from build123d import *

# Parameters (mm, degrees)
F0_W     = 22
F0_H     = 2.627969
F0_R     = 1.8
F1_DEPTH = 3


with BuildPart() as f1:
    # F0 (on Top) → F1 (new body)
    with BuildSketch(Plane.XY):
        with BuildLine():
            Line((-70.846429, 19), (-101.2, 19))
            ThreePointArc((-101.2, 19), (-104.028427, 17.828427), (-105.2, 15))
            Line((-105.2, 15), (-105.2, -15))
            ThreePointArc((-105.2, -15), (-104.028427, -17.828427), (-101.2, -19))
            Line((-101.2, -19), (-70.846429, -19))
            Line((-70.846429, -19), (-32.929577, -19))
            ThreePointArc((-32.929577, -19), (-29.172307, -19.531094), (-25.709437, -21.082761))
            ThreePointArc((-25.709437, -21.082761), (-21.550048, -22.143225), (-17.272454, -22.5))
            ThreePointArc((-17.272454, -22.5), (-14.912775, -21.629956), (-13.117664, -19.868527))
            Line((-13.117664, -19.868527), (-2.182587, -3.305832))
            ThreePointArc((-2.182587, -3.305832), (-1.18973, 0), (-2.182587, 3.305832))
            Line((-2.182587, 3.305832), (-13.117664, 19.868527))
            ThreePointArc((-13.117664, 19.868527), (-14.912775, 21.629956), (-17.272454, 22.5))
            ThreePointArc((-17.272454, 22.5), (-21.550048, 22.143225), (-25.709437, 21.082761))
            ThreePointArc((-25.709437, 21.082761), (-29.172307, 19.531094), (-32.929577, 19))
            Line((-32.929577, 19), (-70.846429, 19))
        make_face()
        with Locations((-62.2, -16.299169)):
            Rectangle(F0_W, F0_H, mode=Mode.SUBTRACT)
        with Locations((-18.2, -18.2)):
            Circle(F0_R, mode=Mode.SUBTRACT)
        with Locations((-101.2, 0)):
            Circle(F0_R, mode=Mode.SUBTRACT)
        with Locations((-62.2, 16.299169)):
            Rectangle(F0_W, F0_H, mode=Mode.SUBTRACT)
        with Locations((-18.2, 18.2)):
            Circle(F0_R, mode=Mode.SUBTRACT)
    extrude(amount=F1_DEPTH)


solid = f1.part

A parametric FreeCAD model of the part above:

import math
import FreeCAD as App
import Part
import Sketcher
Q = App.Units.Quantity


def add_polygon(sketch, points):
    """Adds a closed chain of lines whose ends are joined by coincident constraints."""
    first, n = sketch.GeometryCount, len(points)
    for a, b in zip(points, points[1:] + points[:1]):
        sketch.addGeometry(Part.LineSegment(App.Vector(*a, 0), App.Vector(*b, 0)), False)
    for i in range(n):
        sketch.addConstraint(Sketcher.Constraint("Coincident", first + i, 2, first + (i + 1) % n, 1))

doc = App.newDocument("Part")
params = doc.addObject("Spreadsheet::Sheet", "Params")
for row, (alias, value) in enumerate([
    ("sketch1_radius", "4 mm"),
    ("sketch1_diameter", "3.6 mm"),
    ("sketch1_width", "22 mm"),
    ("sketch1_height", "30 mm"),
    ("pad1_length", "3 mm"),
], start=1):
    params.set(f"A{row}", alias)
    params.set(f"B{row}", "=" + value)
    params.setAlias(f"B{row}", alias)

body = doc.addObject("PartDesign::Body", "Body")

# Sketch on XY plane
sketch1 = body.newObject("Sketcher::SketchObject", "Sketch")
sketch1.AttachmentSupport = (doc.getObject("XY_Plane"), [""])
sketch1.MapMode = "FlatFace"
sketch1.addGeometry(Part.ArcOfCircle(Part.Circle(App.Vector(-101.2, 15, 0), App.Vector(0, 0, 1), 4), math.radians(90), math.radians(180)), False)  # 0
sketch1.addGeometry(Part.LineSegment(App.Vector(-105.2, 15, 0), App.Vector(-105.2, -15, 0)), False)  # 1
sketch1.addGeometry(Part.ArcOfCircle(Part.Circle(App.Vector(-101.2, -15, 0), App.Vector(0, 0, 1), 4), math.radians(-180), math.radians(-90)), False)  # 2
sketch1.addGeometry(Part.LineSegment(App.Vector(-101.2, -19, 0), App.Vector(-32.9, -19, 0)), False)  # 3
sketch1.addGeometry(Part.ArcOfCircle(Part.Circle(App.Vector(-32.9, -32.6, 0), App.Vector(0, 0, 1), 13.6), math.radians(58), math.radians(90)), False)  # 4
sketch1.addGeometry(Part.ArcOfCircle(Part.Circle(App.Vector(-17.3, 3.3, 0), App.Vector(0, 0, 1), 25.8), math.radians(-109.07), math.radians(-90)), False)  # 5
sketch1.addGeometry(Part.ArcOfCircle(Part.Circle(App.Vector(-18.1, -16.6, 0), App.Vector(0, 0, 1), 6), math.radians(-82), math.radians(-33)), False)  # 6
sketch1.addGeometry(Part.LineSegment(App.Vector(-13.1, -19.9, 0), App.Vector(-2.2, -3.3, 0)), False)  # 7
sketch1.addGeometry(Part.ArcOfCircle(Part.Circle(App.Vector(-7.2, 0, 0), App.Vector(0, 0, 1), 6), math.radians(-33), math.radians(33)), False)  # 8
sketch1.addGeometry(Part.LineSegment(App.Vector(-2.2, 3.3, 0), App.Vector(-13.1, 19.9, 0)), False)  # 9
sketch1.addGeometry(Part.ArcOfCircle(Part.Circle(App.Vector(-18.1, 16.6, 0), App.Vector(0, 0, 1), 6), math.radians(33), math.radians(82)), False)  # 10
sketch1.addGeometry(Part.ArcOfCircle(Part.Circle(App.Vector(-17.3, -3.3, 0), App.Vector(0, 0, 1), 25.8), math.radians(90), math.radians(109.07)), False)  # 11
sketch1.addGeometry(Part.ArcOfCircle(Part.Circle(App.Vector(-32.9, 32.6, 0), App.Vector(0, 0, 1), 13.6), math.radians(-90), math.radians(-58)), False)  # 12
sketch1.addGeometry(Part.LineSegment(App.Vector(-32.9, 19, 0), App.Vector(-101.2, 19, 0)), False)  # 13
add_polygon(sketch1, [(-51.2, -17.6), (-73.2, -17.6), (-73.2, -15), (-51.2, -15)])  # lines 14-17
sketch1.addGeometry(Part.Circle(App.Vector(-18.2, -18.2, 0), App.Vector(0, 0, 1), 1.8), False)  # 18
sketch1.addGeometry(Part.Circle(App.Vector(-101.2, 0, 0), App.Vector(0, 0, 1), 1.8), False)  # 19
add_polygon(sketch1, [(-51.2, 15), (-73.2, 15), (-73.2, 17.6), (-51.2, 17.6)])  # lines 20-23
sketch1.addGeometry(Part.Circle(App.Vector(-18.2, 18.2, 0), App.Vector(0, 0, 1), 1.8), False)  # 24
sketch1.addConstraint([
    Sketcher.Constraint("Tangent", 0, 2, 1, 1),
    Sketcher.Constraint("Tangent", 1, 2, 2, 1),
    Sketcher.Constraint("Tangent", 2, 2, 3, 1),
    Sketcher.Constraint("Tangent", 3, 2, 4, 2),
    Sketcher.Constraint("Coincident", 4, 1, 5, 1),
    Sketcher.Constraint("Coincident", 5, 2, 6, 1),
    Sketcher.Constraint("Tangent", 6, 2, 7, 1),
    Sketcher.Constraint("Tangent", 7, 2, 8, 1),
    Sketcher.Constraint("Tangent", 8, 2, 9, 1),
    Sketcher.Constraint("Tangent", 9, 2, 10, 1),
    Sketcher.Constraint("Coincident", 10, 2, 11, 1),
    Sketcher.Constraint("Coincident", 11, 2, 12, 2),
    Sketcher.Constraint("Tangent", 12, 1, 13, 1),
    Sketcher.Constraint("Tangent", 13, 2, 0, 1),
    Sketcher.Constraint("Vertical", 1),
    Sketcher.Constraint("Horizontal", 3),
    Sketcher.Constraint("Horizontal", 13),
    Sketcher.Constraint("Horizontal", 14),
    Sketcher.Constraint("Vertical", 15),
    Sketcher.Constraint("Horizontal", 16),
    Sketcher.Constraint("Vertical", 17),
    Sketcher.Constraint("Horizontal", 20),
    Sketcher.Constraint("Vertical", 21),
    Sketcher.Constraint("Horizontal", 22),
    Sketcher.Constraint("Vertical", 23),
    Sketcher.Constraint("Equal", 0, 2),
    Sketcher.Constraint("Equal", 6, 10),
    Sketcher.Constraint("Equal", 5, 11),
    Sketcher.Constraint("Equal", 4, 12),
    Sketcher.Constraint("Equal", 18, 19),
    Sketcher.Constraint("Equal", 19, 24),
    Sketcher.Constraint("Symmetric", 6, 3, 10, 3, -1),
    Sketcher.Constraint("Symmetric", 5, 3, 11, 3, -1),
    Sketcher.Constraint("Symmetric", 4, 3, 12, 3, -1),
    Sketcher.Constraint("Symmetric", 18, 3, 24, 3, -1),
    Sketcher.Constraint("Symmetric", 15, 2, 20, 2, -1),
    Sketcher.Constraint("Symmetric", 17, 2, 22, 2, -1),
    Sketcher.Constraint("PointOnObject", 8, 3, -1),
    Sketcher.Constraint("PointOnObject", 19, 3, -1),
    Sketcher.Constraint("Vertical", 2, 3, 19, 3),
    Sketcher.Constraint("Radius", 0, Q("4 mm")),
    Sketcher.Constraint("Diameter", 18, Q("3.6 mm")),
    Sketcher.Constraint("DistanceX", 14, 2, 14, 1, Q("22 mm")),
    Sketcher.Constraint("DistanceY", 1, 2, 1, 1, Q("30 mm")),
    Sketcher.Constraint("DistanceX", 2, 2, 14, 2, Q("28 mm")),
    Sketcher.Constraint("DistanceX", 0, 3, -1, 1, Q("101.2 mm")),
    Sketcher.Constraint("DistanceX", 18, 3, -1, 1, Q("18.2 mm")),
    Sketcher.Constraint("DistanceY", 18, 3, -1, 1, Q("18.2 mm")),
    Sketcher.Constraint("DistanceY", 5, 2, -1, 1, Q("22.5 mm")),
    Sketcher.Constraint("Radius", 5, Q("25.821811 mm")),
    Sketcher.Constraint("Radius", 4, Q("13.556128 mm")),
    Sketcher.Constraint("Radius", 6, Q("5.994564 mm")),
    Sketcher.Constraint("Radius", 8, Q("6.000003 mm")),
    Sketcher.Constraint("DistanceY", 15, 1, 15, 2, Q("2.627969 mm")),
    Sketcher.Constraint("DistanceX", 3, 1, 3, 2, Q("68.270423 mm")),
    Sketcher.Constraint("DistanceX", 6, 3, -1, 1, Q("18.120272 mm")),
    Sketcher.Constraint("DistanceY", 4, 1, -1, 1, Q("21.082761 mm")),
    Sketcher.Constraint("DistanceX", 6, 3, 8, 3, Q("10.930539 mm")),
    Sketcher.Constraint("DistanceY", 5, 3, 10, 3, Q("13.243881 mm")),
    Sketcher.Constraint("DistanceY", 15, 2, 20, 2, Q("29.970369 mm")),
])
sketch1.setExpression("Constraints[48]", "Params.sketch1_radius")
sketch1.setExpression("Constraints[49]", "Params.sketch1_diameter")
sketch1.setExpression("Constraints[50]", "Params.sketch1_width")
sketch1.setExpression("Constraints[51]", "Params.sketch1_height")
pad1 = body.newObject("PartDesign::Pad", "Pad")
pad1.Profile = sketch1
pad1.setExpression("Length", "Params.pad1_length")

doc.recompute()
